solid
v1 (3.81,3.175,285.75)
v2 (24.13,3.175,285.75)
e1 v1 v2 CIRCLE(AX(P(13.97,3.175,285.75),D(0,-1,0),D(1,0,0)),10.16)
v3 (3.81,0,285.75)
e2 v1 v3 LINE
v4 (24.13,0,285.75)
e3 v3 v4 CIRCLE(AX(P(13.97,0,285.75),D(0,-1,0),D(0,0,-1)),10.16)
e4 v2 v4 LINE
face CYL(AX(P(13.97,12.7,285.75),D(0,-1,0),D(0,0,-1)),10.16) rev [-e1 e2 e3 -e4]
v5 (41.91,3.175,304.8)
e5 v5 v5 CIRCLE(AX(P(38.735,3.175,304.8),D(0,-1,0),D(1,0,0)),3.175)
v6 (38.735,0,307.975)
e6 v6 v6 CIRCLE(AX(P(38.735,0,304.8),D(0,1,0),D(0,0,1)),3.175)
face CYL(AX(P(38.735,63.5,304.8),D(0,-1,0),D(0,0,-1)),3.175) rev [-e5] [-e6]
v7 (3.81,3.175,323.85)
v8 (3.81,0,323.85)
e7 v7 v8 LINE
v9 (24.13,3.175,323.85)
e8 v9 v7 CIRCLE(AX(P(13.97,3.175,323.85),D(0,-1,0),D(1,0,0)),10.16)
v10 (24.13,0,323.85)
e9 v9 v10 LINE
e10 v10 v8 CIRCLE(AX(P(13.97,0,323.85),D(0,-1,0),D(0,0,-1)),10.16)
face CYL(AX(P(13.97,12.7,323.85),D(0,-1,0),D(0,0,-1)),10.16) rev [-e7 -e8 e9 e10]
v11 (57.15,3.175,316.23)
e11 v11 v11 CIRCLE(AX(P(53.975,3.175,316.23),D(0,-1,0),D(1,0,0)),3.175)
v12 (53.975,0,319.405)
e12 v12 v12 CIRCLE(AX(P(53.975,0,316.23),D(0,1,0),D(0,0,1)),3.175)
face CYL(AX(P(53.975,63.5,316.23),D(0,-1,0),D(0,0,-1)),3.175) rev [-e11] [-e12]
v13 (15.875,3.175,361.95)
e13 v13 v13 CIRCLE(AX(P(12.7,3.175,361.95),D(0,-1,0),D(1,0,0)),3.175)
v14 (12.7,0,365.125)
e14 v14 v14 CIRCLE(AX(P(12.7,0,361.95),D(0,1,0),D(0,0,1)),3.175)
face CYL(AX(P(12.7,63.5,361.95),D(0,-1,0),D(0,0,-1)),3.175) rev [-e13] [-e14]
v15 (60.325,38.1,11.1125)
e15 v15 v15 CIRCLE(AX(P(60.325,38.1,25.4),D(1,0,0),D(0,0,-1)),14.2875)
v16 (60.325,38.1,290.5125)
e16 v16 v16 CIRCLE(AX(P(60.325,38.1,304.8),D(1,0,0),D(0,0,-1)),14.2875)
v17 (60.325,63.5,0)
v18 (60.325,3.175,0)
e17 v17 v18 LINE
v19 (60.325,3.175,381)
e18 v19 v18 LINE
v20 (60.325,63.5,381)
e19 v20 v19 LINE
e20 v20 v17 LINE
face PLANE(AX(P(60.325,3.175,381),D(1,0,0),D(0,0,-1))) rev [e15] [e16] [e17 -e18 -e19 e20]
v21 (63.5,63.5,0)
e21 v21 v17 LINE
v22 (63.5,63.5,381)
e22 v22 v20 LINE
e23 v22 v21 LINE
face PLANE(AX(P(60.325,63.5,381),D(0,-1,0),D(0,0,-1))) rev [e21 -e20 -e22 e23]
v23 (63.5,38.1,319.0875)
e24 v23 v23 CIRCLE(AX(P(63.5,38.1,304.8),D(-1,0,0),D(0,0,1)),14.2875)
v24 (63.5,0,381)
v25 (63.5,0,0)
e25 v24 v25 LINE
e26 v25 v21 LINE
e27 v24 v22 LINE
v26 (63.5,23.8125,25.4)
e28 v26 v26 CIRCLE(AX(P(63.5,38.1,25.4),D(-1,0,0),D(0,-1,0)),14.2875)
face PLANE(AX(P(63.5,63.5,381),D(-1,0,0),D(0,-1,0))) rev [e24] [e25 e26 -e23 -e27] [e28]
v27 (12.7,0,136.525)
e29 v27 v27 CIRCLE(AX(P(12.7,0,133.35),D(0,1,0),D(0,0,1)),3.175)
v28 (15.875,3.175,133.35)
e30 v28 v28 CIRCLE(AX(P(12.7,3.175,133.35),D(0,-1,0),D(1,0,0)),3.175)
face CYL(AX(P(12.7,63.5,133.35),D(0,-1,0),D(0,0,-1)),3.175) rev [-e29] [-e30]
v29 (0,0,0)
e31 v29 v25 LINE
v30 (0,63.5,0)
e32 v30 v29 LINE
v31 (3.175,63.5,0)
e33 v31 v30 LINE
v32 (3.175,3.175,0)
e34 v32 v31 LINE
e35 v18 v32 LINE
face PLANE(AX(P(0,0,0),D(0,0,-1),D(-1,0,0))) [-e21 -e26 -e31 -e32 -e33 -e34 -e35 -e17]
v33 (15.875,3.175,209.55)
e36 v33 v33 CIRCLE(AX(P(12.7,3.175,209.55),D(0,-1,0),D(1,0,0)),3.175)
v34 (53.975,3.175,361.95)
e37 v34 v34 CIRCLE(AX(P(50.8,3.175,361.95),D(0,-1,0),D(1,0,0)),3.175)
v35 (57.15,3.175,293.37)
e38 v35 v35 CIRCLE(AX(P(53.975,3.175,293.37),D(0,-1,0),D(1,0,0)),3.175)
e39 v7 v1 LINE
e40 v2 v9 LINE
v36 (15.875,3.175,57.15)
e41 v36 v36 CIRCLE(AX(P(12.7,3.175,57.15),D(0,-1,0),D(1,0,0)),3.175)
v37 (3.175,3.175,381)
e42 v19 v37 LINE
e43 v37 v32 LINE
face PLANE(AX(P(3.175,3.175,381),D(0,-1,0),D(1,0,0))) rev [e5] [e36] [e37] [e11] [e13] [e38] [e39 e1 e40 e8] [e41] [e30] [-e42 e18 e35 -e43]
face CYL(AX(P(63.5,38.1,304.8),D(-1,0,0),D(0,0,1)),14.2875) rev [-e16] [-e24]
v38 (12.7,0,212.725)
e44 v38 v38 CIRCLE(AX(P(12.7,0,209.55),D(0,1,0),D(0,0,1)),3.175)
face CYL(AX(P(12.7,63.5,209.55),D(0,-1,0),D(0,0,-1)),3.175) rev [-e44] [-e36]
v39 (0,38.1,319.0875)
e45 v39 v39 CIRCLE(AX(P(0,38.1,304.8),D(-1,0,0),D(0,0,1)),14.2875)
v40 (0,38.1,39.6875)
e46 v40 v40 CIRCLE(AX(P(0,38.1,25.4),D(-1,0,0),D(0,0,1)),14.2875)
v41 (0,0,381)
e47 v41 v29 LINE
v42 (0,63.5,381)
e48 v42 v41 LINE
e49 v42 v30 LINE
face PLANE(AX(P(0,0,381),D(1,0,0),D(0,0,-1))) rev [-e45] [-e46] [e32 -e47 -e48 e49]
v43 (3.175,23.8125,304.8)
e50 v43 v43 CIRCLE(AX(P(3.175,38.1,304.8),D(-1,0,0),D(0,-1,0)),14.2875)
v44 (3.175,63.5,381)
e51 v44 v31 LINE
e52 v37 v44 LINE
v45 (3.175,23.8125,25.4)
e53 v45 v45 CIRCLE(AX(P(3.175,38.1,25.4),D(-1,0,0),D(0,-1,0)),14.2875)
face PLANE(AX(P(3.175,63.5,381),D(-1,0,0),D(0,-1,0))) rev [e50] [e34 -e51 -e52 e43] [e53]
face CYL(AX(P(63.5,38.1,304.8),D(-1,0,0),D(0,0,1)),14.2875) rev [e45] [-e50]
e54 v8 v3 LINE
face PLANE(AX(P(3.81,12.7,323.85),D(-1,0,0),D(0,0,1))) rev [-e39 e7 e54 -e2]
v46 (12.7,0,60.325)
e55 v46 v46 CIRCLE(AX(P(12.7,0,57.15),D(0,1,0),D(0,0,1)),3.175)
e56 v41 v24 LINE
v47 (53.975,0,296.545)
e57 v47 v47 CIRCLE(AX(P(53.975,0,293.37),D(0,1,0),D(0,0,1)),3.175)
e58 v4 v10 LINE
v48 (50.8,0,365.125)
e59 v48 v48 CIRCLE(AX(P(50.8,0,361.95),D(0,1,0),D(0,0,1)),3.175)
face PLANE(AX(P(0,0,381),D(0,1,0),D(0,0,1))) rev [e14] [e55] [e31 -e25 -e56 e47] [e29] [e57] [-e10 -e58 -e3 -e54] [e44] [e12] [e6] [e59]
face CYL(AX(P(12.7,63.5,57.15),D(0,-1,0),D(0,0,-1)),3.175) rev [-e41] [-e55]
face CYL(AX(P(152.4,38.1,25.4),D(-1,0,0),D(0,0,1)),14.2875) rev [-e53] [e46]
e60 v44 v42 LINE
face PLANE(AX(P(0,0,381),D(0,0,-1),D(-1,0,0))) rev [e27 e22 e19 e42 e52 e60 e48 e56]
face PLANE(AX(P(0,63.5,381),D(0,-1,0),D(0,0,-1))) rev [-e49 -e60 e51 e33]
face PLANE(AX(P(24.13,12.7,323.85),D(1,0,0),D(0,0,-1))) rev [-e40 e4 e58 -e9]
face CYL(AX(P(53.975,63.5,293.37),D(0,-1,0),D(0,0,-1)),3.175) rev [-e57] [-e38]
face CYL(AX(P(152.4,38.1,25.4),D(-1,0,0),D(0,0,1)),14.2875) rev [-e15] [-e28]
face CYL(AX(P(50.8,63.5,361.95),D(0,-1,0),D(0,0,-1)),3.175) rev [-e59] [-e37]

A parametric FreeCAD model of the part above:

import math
import FreeCAD as App
import Part
import Sketcher
Q = App.Units.Quantity

doc = App.newDocument("Part")
body = doc.addObject("PartDesign::Body", "Body")

# Sketch on XY plane
sketch1 = body.newObject("Sketcher::SketchObject", "Sketch")
sketch1.AttachmentSupport = (doc.getObject("XY_Plane"), [""])
sketch1.MapMode = "FlatFace"
sketch1.addGeometry([
    Part.LineSegment(App.Vector(0, 0, 0), App.Vector(63.5, 0, 0)),  # 0
    Part.LineSegment(App.Vector(63.5, 0, 0), App.Vector(63.5, 63.5, 0)),  # 1
    Part.LineSegment(App.Vector(63.5, 63.5, 0), App.Vector(60.3, 63.5, 0)),  # 2
    Part.LineSegment(App.Vector(60.3, 63.5, 0), App.Vector(60.3, 3.2, 0)),  # 3
    Part.LineSegment(App.Vector(60.3, 3.2, 0), App.Vector(3.2, 3.2, 0)),  # 4
    Part.LineSegment(App.Vector(3.2, 3.2, 0), App.Vector(3.2, 63.5, 0)),  # 5
    Part.LineSegment(App.Vector(3.2, 63.5, 0), App.Vector(0, 63.5, 0)),  # 6
    Part.LineSegment(App.Vector(0, 63.5, 0), App.Vector(0, 0, 0)),  # 7
], False)
sketch1.addConstraint([
    Sketcher.Constraint("Coincident", 0, 2, 1, 1),
    Sketcher.Constraint("Coincident", 1, 2, 2, 1),
    Sketcher.Constraint("Coincident", 2, 2, 3, 1),
    Sketcher.Constraint("Coincident", 3, 2, 4, 1),
    Sketcher.Constraint("Coincident", 4, 2, 5, 1),
    Sketcher.Constraint("Coincident", 5, 2, 6, 1),
    Sketcher.Constraint("Coincident", 6, 2, 7, 1),
    Sketcher.Constraint("Coincident", 7, 2, 0, 1),
    Sketcher.Constraint("Horizontal", 0),
    Sketcher.Constraint("Vertical", 1),
    Sketcher.Constraint("Horizontal", 2),
    Sketcher.Constraint("Vertical", 3),
    Sketcher.Constraint("Horizontal", 4),
    Sketcher.Constraint("Vertical", 5),
    Sketcher.Constraint("Horizontal", 6),
    Sketcher.Constraint("Vertical", 7),
    Sketcher.Constraint("Coincident", 7, 2, -1, 1),
    Sketcher.Constraint("Horizontal", 2, 2, 5, 2),
    Sketcher.Constraint("Equal", 2, 6),
    Sketcher.Constraint("Equal", 0, 1),
    Sketcher.Constraint("DistanceX", 0, 1, 0, 2, Q("2.5 in")),
    Sketcher.Constraint("DistanceX", 4, 2, 4, 1, Q("2.25 in")),
    Sketcher.Constraint("DistanceY", 3, 2, 3, 1, Q("2.375 in")),
])
pad1 = body.newObject("PartDesign::Pad", "Pad")
pad1.Profile = sketch1
pad1.Length = Q("15 in")

# Sketch on XZ plane
sketch2 = body.newObject("Sketcher::SketchObject", "Sketch001")
sketch2.AttachmentSupport = (doc.getObject("XZ_Plane"), [""])
sketch2.MapMode = "FlatFace"
sketch2.addGeometry([
    Part.Circle(App.Vector(12.7, 361.9, 0), App.Vector(0, 0, 1), 3.2),  # 0
    Part.Circle(App.Vector(50.8, 361.9, 0), App.Vector(0, 0, 1), 3.2),  # 1
    Part.Circle(App.Vector(12.7, 57.1, 0), App.Vector(0, 0, 1), 3.2),  # 2
    Part.Circle(App.Vector(12.7, 133.3, 0), App.Vector(0, 0, 1), 3.2),  # 3
    Part.Circle(App.Vector(12.7, 209.6, 0), App.Vector(0, 0, 1), 3.2),  # 4
], False)
sketch2.addConstraint([
    Sketcher.Constraint("Equal", 0, 1),
    Sketcher.Constraint("Equal", 1, 2),
    Sketcher.Constraint("Equal", 2, 3),
    Sketcher.Constraint("Equal", 3, 4),
    Sketcher.Constraint("Horizontal", 0, 3, 1, 3),
    Sketcher.Constraint("Vertical", 0, 3, 2, 3),
    Sketcher.Constraint("Vertical", 2, 3, 3, 3),
    Sketcher.Constraint("Vertical", 3, 3, 4, 3),
    Sketcher.Constraint("Diameter", 0, Q("0.25 in")),
    Sketcher.Constraint("DistanceX", -1, 1, 1, 3, Q("2 in")),
    Sketcher.Constraint("DistanceY", 2, 3, 0, 3, Q("12 in")),
    Sketcher.Constraint("DistanceY", 2, 3, 3, 3, Q("3 in")),
    Sketcher.Constraint("DistanceY", 3, 3, 4, 3, Q("3 in")),
    Sketcher.Constraint("DistanceX", -1, 1, 0, 3, Q("0.5 in")),
    Sketcher.Constraint("DistanceY", -1, 1, 0, 3, Q("14.25 in")),
])
pocket1 = body.newObject("PartDesign::Pocket", "Pocket")
pocket1.Profile = sketch2
pocket1.Type = "ThroughAll"
pocket1.Midplane = True

# Sketch on XZ plane
sketch3 = body.newObject("Sketcher::SketchObject", "Sketch002")
sketch3.AttachmentSupport = (doc.getObject("XZ_Plane"), [""])
sketch3.MapMode = "FlatFace"
sketch3.addGeometry([
    Part.LineSegment(App.Vector(24, 286, 0), App.Vector(24, 324, 0)),
    Part.ArcOfCircle(Part.Circle(App.Vector(14, 324, 0), App.Vector(0, 0, 1), 10), math.radians(0), math.radians(180)),
    Part.LineSegment(App.Vector(4, 324, 0), App.Vector(4, 286, 0)),
    Part.ArcOfCircle(Part.Circle(App.Vector(14, 286, 0), App.Vector(0, 0, 1), 10), math.radians(180), math.radians(360)),
], False)
sketch3.addConstraint([
    Sketcher.Constraint("Tangent", 0, 2, 1, 1),
    Sketcher.Constraint("Tangent", 1, 2, 2, 1),
    Sketcher.Constraint("Tangent", 2, 2, 3, 1),
    Sketcher.Constraint("Tangent", 3, 2, 0, 1),
    Sketcher.Constraint("Vertical", 0),
    Sketcher.Constraint("Vertical", 2),
    Sketcher.Constraint("Radius", 1, Q("0.4 in")),
    Sketcher.Constraint("DistanceY", 0, 1, 0, 2, Q("1.5 in")),
    Sketcher.Constraint("DistanceX", -1, 1, 1, 3, Q("0.55 in")),
    Sketcher.Constraint("DistanceY", -1, 1, 1, 3, Q("12.75 in")),
])
pocket2 = body.newObject("PartDesign::Pocket", "Pocket001")
pocket2.Profile = sketch3
pocket2.Length = Q("0.5 in")

# Sketch on YZ plane
sketch4 = body.newObject("Sketcher::SketchObject", "Sketch003")
sketch4.AttachmentSupport = (doc.getObject("YZ_Plane"), [""])
sketch4.MapMode = "FlatFace"
sketch4.AttachmentOffset = App.Placement(App.Vector(0, 0, 0.55 * 25.4), App.Rotation())
sketch4.addGeometry(Part.Circle(App.Vector(38, 305, 0), App.Vector(0, 0, 1), 14), False)
sketch4.addConstraint([
    Sketcher.Constraint("Diameter", 0, Q("1.125 in")),
    Sketcher.Constraint("DistanceY", -1, 1, 0, 3, Q("12 in")),
    Sketcher.Constraint("DistanceX", -1, 1, 0, 3, Q("1.5 in")),
])
pocket3 = body.newObject("PartDesign::Pocket", "Pocket002")
pocket3.Profile = sketch4
pocket3.Type = "ThroughAll"
pocket3.Midplane = True

# Sketch on XZ plane
sketch5 = body.newObject("Sketcher::SketchObject", "Sketch004")
sketch5.AttachmentSupport = (doc.getObject("XZ_Plane"), [""])
sketch5.MapMode = "FlatFace"
sketch5.addGeometry([
    Part.Circle(App.Vector(38.7, 304.8, 0), App.Vector(0, 0, 1), 3.2),
    Part.Circle(App.Vector(54, 316.2, 0), App.Vector(0, 0, 1), 3.2),
    Part.Circle(App.Vector(54, 293.4, 0), App.Vector(0, 0, 1), 3.2),
], False)
sketch5.addConstraint([
    Sketcher.Constraint("Equal", 0, 1),
    Sketcher.Constraint("Equal", 1, 2),
    Sketcher.Constraint("Vertical", 1, 3, 2, 3),
    Sketcher.Constraint("Diameter", 0, Q("0.25 in")),
    Sketcher.Constraint("DistanceY", -1, 1, 0, 3, Q("12 in")),
    Sketcher.Constraint("DistanceX", 0, 3, 1, 3, Q("0.6 in")),
    Sketcher.Constraint("DistanceY", 2, 3, 1, 3, Q("0.9 in")),
    Sketcher.Constraint("DistanceY", -1, 1, 1, 3, Q("12.45 in")),
    Sketcher.Constraint("DistanceX", -1, 1, 0, 3, Q("1.525 in")),
])
pocket4 = body.newObject("PartDesign::Pocket", "Pocket003")
pocket4.Profile = sketch5
pocket4.Type = "ThroughAll"
pocket4.Midplane = True

# Sketch on YZ plane
sketch6 = body.newObject("Sketcher::SketchObject", "Sketch005")
sketch6.AttachmentSupport = (doc.getObject("YZ_Plane"), [""])
sketch6.MapMode = "FlatFace"
sketch6.addGeometry(Part.Circle(App.Vector(38, 25, 0), App.Vector(0, 0, 1), 14), False)
sketch6.addConstraint([
    Sketcher.Constraint("Diameter", 0, Q("1.125 in")),
    Sketcher.Constraint("DistanceY", -1, 1, 0, 3, Q("1 in")),
    Sketcher.Constraint("DistanceX", -1, 1, 0, 3, Q("1.5 in")),
])
pocket5 = body.newObject("PartDesign::Pocket", "Pocket004")
pocket5.Profile = sketch6
pocket5.Length = Q("6 in")
pocket5.Reversed = True

doc.recompute()
